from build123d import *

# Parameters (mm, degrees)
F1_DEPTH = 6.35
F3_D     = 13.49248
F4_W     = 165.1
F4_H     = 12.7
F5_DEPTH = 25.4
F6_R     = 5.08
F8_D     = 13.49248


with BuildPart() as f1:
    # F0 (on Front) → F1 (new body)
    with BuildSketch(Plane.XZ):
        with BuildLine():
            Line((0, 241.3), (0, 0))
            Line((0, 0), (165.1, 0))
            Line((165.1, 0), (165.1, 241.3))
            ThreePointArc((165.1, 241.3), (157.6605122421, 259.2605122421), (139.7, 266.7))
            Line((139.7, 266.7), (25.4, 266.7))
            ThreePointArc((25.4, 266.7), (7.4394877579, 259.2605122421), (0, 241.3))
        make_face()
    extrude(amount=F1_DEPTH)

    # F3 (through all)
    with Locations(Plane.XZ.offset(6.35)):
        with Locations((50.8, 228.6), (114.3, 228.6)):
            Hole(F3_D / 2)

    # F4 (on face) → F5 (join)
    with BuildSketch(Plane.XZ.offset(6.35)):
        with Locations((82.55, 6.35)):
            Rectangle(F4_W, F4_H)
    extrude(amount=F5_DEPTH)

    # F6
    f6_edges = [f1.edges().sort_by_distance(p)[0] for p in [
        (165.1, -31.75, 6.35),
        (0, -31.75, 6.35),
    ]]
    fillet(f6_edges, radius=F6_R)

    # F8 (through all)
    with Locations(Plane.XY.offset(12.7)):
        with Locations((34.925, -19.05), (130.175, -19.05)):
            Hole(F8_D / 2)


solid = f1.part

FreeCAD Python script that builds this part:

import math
import FreeCAD as App
import Part
import Sketcher
Q = App.Units.Quantity


def edges_at(feature, points):
    """Names of the edges that pass closest to the given points."""
    edges = feature.Shape.Edges
    near = lambda p: min(range(len(edges)), key=lambda i: edges[i].distToShape(Part.Vertex(*p))[0])
    return sorted({f"Edge{near(p) + 1}" for p in points})


def add_polygon(sketch, points):
    """Adds a closed chain of lines whose ends are joined by coincident constraints."""
    first, n = sketch.GeometryCount, len(points)
    for a, b in zip(points, points[1:] + points[:1]):
        sketch.addGeometry(Part.LineSegment(App.Vector(*a, 0), App.Vector(*b, 0)), False)
    for i in range(n):
        sketch.addConstraint(Sketcher.Constraint("Coincident", first + i, 2, first + (i + 1) % n, 1))

doc = App.newDocument("Part")
body = doc.addObject("PartDesign::Body", "Body")

sketch1 = doc.addObject("Sketcher::SketchObject", "Sketch")
body.addObject(sketch1)
sketch1.AttachmentSupport = (doc.XZ_Plane, [""])
sketch1.MapMode = "FlatFace"
sketch1.addGeometry([
    Part.LineSegment(App.Vector(0, 241.3, 0), App.Vector(0, 0, 0)),
    Part.LineSegment(App.Vector(0, 0, 0), App.Vector(165.1, 0, 0)),
    Part.LineSegment(App.Vector(165.1, 0, 0), App.Vector(165.1, 241.3, 0)),
    Part.ArcOfCircle(Part.Circle(App.Vector(139.7, 241.3, 0), App.Vector(0, 0, 1), 25.4), math.radians(0), math.radians(90)),
    Part.LineSegment(App.Vector(139.7, 266.7, 0), App.Vector(25.4, 266.7, 0)),
    Part.ArcOfCircle(Part.Circle(App.Vector(25.4, 241.3, 0), App.Vector(0, 0, 1), 25.4), math.radians(90), math.radians(180)),
], False)
sketch1.addConstraint([
    Sketcher.Constraint("Coincident", 0, 2, 1, 1),
    Sketcher.Constraint("Coincident", 1, 2, 2, 1),
    Sketcher.Constraint("Tangent", 2, 2, 3, 1),
    Sketcher.Constraint("Tangent", 3, 2, 4, 1),
    Sketcher.Constraint("Tangent", 4, 2, 5, 1),
    Sketcher.Constraint("Tangent", 5, 2, 0, 1),
    Sketcher.Constraint("Vertical", 0),
    Sketcher.Constraint("Horizontal", 1),
    Sketcher.Constraint("Vertical", 2),
    Sketcher.Constraint("Horizontal", 4),
    Sketcher.Constraint("Coincident", 0, 2, -1, 1),
    Sketcher.Constraint("Equal", 3, 5),
    Sketcher.Constraint("Radius", 3, Q("1 in")),
    Sketcher.Constraint("DistanceX", 1, 1, 1, 2, Q("6.5 in")),
    Sketcher.Constraint("DistanceY", 0, 2, 0, 1, Q("9.5 in")),
])
pad1 = doc.addObject("PartDesign::Pad", "Pad")
body.addObject(pad1)
pad1.Profile = sketch1
pad1.Length = Q("0.25 in")

sketch2 = doc.addObject("Sketcher::SketchObject", "Sketch001")
body.addObject(sketch2)
sketch2.AttachmentSupport = (doc.XZ_Plane, [""])
sketch2.MapMode = "FlatFace"
sketch2.AttachmentOffset = App.Placement(App.Vector(0, 0, 0.25 * 25.4), App.Rotation())
sketch2.addGeometry([
    Part.Circle(App.Vector(50.8, 228.6, 0), App.Vector(0, 0, 1), 6.74624),
    Part.Circle(App.Vector(114.3, 228.6, 0), App.Vector(0, 0, 1), 6.74624),
], False)
sketch2.addConstraint([
    Sketcher.Constraint("Equal", 0, 1),
    Sketcher.Constraint("Horizontal", 0, 3, 1, 3),
    Sketcher.Constraint("DistanceX", -1, 1, 0, 3, Q("2 in")),
    Sketcher.Constraint("DistanceY", -1, 1, 0, 3, Q("9 in")),
    Sketcher.Constraint("Diameter", 0, Q("0.5312 in")),
    Sketcher.Constraint("DistanceX", -1, 1, 1, 3, Q("4.5 in")),
])
doc.recompute()
hole = doc.addObject("PartDesign::Hole", "Hole")
body.addObject(hole)
hole.Profile = sketch2
hole.ThreadType = "None"
hole.Diameter = Q("0.5312 in")
hole.DepthType = "ThroughAll"

sketch3 = doc.addObject("Sketcher::SketchObject", "Sketch002")
body.addObject(sketch3)
sketch3.AttachmentSupport = (doc.XZ_Plane, [""])
sketch3.MapMode = "FlatFace"
sketch3.AttachmentOffset = App.Placement(App.Vector(0, 0, 0.25 * 25.4), App.Rotation())
add_polygon(sketch3, [(0, 12.7), (0, 0), (165.1, 0), (165.1, 12.7)])
sketch3.addConstraint([
    Sketcher.Constraint("Vertical", 0),
    Sketcher.Constraint("Horizontal", 1),
    Sketcher.Constraint("Vertical", 2),
    Sketcher.Constraint("Horizontal", 3),
    Sketcher.Constraint("Coincident", 0, 2, -1, 1),
    Sketcher.Constraint("DistanceX", 1, 1, 1, 2, Q("6.5 in")),
    Sketcher.Constraint("DistanceY", 0, 2, 0, 1, Q("0.5 in")),
])
pad2 = doc.addObject("PartDesign::Pad", "Pad001")
body.addObject(pad2)
pad2.Profile = sketch3
pad2.Length = Q("1 in")
doc.recompute()

fillet = doc.addObject("PartDesign::Fillet", "Fillet")
body.addObject(fillet)
fillet.Base = (pad2, edges_at(pad2, [(165.1, -31.75, 6.35), (0, -31.75, 6.35)]))
fillet.Radius = Q("0.2 in")

sketch4 = doc.addObject("Sketcher::SketchObject", "Sketch003")
body.addObject(sketch4)
sketch4.AttachmentSupport = (doc.XY_Plane, [""])
sketch4.MapMode = "FlatFace"
sketch4.AttachmentOffset = App.Placement(App.Vector(0, 0, 0.5 * 25.4), App.Rotation())
sketch4.addGeometry([
    Part.Circle(App.Vector(34.925, -19.05, 0), App.Vector(0, 0, 1), 6.74624),
    Part.Circle(App.Vector(130.175, -19.05, 0), App.Vector(0, 0, 1), 6.74624),
], False)
sketch4.addConstraint([
    Sketcher.Constraint("Equal", 0, 1),
    Sketcher.Constraint("Horizontal", 0, 3, 1, 3),
    Sketcher.Constraint("Diameter", 0, Q("0.5312 in")),
    Sketcher.Constraint("DistanceY", 0, 3, -1, 1, Q("0.75 in")),
    Sketcher.Constraint("DistanceX", 0, 3, 1, 3, Q("3.75 in")),
    Sketcher.Constraint("DistanceX", -1, 1, 0, 3, Q("1.375 in")),
])
doc.recompute()
hole2 = doc.addObject("PartDesign::Hole", "Hole001")
body.addObject(hole2)
hole2.Profile = sketch4
hole2.ThreadType = "None"
hole2.Diameter = Q("0.5312 in")
hole2.DepthType = "ThroughAll"

doc.recompute()
